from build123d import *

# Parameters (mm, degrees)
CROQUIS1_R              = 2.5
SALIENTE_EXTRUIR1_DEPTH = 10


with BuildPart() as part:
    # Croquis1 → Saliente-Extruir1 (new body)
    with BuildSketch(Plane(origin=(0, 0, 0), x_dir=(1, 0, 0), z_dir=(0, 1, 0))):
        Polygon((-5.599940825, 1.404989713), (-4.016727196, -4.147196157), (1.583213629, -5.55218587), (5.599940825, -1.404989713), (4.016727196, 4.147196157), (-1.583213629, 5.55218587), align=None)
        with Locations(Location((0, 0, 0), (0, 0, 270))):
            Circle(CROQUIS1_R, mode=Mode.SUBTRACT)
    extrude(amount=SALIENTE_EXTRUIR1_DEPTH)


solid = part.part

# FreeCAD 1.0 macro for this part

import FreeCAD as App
import Part
import Sketcher
Q = App.Units.Quantity


def add_polygon(sketch, points):
    """Adds a closed chain of lines whose ends are joined by coincident constraints."""
    first, n = sketch.GeometryCount, len(points)
    for a, b in zip(points, points[1:] + points[:1]):
        sketch.addGeometry(Part.LineSegment(App.Vector(*a, 0), App.Vector(*b, 0)), False)
    for i in range(n):
        sketch.addConstraint(Sketcher.Constraint("Coincident", first + i, 2, first + (i + 1) % n, 1))

doc = App.newDocument("Part")
body = doc.addObject("PartDesign::Body", "Body")

# Sketch on XZ plane
sketch1 = body.newObject("Sketcher::SketchObject", "Sketch")
sketch1.AttachmentSupport = (doc.getObject("XZ_Plane"), [""])
sketch1.MapMode = "FlatFace"
add_polygon(sketch1, [(-5.599941, -1.40499), (-4.016727, 4.147196), (1.583214, 5.552186), (5.599941, 1.40499), (4.016727, -4.147196), (-1.583214, -5.552186)])  # lines 0-5
sketch1.addGeometry(Part.Circle(App.Vector(0, 0, 0), App.Vector(0, 0, 1), 2.5), False)  # 6
sketch1.addConstraint(Sketcher.Constraint("Coincident", 6, 3, -1, 1))
sketch1.addConstraint(Sketcher.Constraint("Symmetric", 0, 2, 3, 2, -1, 1))
sketch1.addConstraint(Sketcher.Constraint("Symmetric", 1, 2, 4, 2, -1, 1))
sketch1.addConstraint(Sketcher.Constraint("Symmetric", 2, 2, 5, 2, -1, 1))
sketch1.addConstraint(Sketcher.Constraint("Equal", 0, 1))
sketch1.addConstraint(Sketcher.Constraint("Equal", 1, 2))
sketch1.addConstraint(Sketcher.Constraint("Diameter", 6, Q("5 mm")))
sketch1.addConstraint(Sketcher.Constraint("DistanceX", -1, 1, 2, 2, Q("5.599941 mm")))
sketch1.addConstraint(Sketcher.Constraint("DistanceY", -1, 1, 2, 2, Q("1.40499 mm")))
sketch1.addConstraint(Sketcher.Constraint("DistanceX", 0, 2, 1, 2, Q("5.599941 mm")))
sketch1.addConstraint(Sketcher.Constraint("DistanceY", 0, 2, 1, 2, Q("1.40499 mm")))
pad1 = body.newObject("PartDesign::Pad", "Pad")
pad1.Profile = sketch1
pad1.Length = 10
pad1.Reversed = True

doc.recompute()
